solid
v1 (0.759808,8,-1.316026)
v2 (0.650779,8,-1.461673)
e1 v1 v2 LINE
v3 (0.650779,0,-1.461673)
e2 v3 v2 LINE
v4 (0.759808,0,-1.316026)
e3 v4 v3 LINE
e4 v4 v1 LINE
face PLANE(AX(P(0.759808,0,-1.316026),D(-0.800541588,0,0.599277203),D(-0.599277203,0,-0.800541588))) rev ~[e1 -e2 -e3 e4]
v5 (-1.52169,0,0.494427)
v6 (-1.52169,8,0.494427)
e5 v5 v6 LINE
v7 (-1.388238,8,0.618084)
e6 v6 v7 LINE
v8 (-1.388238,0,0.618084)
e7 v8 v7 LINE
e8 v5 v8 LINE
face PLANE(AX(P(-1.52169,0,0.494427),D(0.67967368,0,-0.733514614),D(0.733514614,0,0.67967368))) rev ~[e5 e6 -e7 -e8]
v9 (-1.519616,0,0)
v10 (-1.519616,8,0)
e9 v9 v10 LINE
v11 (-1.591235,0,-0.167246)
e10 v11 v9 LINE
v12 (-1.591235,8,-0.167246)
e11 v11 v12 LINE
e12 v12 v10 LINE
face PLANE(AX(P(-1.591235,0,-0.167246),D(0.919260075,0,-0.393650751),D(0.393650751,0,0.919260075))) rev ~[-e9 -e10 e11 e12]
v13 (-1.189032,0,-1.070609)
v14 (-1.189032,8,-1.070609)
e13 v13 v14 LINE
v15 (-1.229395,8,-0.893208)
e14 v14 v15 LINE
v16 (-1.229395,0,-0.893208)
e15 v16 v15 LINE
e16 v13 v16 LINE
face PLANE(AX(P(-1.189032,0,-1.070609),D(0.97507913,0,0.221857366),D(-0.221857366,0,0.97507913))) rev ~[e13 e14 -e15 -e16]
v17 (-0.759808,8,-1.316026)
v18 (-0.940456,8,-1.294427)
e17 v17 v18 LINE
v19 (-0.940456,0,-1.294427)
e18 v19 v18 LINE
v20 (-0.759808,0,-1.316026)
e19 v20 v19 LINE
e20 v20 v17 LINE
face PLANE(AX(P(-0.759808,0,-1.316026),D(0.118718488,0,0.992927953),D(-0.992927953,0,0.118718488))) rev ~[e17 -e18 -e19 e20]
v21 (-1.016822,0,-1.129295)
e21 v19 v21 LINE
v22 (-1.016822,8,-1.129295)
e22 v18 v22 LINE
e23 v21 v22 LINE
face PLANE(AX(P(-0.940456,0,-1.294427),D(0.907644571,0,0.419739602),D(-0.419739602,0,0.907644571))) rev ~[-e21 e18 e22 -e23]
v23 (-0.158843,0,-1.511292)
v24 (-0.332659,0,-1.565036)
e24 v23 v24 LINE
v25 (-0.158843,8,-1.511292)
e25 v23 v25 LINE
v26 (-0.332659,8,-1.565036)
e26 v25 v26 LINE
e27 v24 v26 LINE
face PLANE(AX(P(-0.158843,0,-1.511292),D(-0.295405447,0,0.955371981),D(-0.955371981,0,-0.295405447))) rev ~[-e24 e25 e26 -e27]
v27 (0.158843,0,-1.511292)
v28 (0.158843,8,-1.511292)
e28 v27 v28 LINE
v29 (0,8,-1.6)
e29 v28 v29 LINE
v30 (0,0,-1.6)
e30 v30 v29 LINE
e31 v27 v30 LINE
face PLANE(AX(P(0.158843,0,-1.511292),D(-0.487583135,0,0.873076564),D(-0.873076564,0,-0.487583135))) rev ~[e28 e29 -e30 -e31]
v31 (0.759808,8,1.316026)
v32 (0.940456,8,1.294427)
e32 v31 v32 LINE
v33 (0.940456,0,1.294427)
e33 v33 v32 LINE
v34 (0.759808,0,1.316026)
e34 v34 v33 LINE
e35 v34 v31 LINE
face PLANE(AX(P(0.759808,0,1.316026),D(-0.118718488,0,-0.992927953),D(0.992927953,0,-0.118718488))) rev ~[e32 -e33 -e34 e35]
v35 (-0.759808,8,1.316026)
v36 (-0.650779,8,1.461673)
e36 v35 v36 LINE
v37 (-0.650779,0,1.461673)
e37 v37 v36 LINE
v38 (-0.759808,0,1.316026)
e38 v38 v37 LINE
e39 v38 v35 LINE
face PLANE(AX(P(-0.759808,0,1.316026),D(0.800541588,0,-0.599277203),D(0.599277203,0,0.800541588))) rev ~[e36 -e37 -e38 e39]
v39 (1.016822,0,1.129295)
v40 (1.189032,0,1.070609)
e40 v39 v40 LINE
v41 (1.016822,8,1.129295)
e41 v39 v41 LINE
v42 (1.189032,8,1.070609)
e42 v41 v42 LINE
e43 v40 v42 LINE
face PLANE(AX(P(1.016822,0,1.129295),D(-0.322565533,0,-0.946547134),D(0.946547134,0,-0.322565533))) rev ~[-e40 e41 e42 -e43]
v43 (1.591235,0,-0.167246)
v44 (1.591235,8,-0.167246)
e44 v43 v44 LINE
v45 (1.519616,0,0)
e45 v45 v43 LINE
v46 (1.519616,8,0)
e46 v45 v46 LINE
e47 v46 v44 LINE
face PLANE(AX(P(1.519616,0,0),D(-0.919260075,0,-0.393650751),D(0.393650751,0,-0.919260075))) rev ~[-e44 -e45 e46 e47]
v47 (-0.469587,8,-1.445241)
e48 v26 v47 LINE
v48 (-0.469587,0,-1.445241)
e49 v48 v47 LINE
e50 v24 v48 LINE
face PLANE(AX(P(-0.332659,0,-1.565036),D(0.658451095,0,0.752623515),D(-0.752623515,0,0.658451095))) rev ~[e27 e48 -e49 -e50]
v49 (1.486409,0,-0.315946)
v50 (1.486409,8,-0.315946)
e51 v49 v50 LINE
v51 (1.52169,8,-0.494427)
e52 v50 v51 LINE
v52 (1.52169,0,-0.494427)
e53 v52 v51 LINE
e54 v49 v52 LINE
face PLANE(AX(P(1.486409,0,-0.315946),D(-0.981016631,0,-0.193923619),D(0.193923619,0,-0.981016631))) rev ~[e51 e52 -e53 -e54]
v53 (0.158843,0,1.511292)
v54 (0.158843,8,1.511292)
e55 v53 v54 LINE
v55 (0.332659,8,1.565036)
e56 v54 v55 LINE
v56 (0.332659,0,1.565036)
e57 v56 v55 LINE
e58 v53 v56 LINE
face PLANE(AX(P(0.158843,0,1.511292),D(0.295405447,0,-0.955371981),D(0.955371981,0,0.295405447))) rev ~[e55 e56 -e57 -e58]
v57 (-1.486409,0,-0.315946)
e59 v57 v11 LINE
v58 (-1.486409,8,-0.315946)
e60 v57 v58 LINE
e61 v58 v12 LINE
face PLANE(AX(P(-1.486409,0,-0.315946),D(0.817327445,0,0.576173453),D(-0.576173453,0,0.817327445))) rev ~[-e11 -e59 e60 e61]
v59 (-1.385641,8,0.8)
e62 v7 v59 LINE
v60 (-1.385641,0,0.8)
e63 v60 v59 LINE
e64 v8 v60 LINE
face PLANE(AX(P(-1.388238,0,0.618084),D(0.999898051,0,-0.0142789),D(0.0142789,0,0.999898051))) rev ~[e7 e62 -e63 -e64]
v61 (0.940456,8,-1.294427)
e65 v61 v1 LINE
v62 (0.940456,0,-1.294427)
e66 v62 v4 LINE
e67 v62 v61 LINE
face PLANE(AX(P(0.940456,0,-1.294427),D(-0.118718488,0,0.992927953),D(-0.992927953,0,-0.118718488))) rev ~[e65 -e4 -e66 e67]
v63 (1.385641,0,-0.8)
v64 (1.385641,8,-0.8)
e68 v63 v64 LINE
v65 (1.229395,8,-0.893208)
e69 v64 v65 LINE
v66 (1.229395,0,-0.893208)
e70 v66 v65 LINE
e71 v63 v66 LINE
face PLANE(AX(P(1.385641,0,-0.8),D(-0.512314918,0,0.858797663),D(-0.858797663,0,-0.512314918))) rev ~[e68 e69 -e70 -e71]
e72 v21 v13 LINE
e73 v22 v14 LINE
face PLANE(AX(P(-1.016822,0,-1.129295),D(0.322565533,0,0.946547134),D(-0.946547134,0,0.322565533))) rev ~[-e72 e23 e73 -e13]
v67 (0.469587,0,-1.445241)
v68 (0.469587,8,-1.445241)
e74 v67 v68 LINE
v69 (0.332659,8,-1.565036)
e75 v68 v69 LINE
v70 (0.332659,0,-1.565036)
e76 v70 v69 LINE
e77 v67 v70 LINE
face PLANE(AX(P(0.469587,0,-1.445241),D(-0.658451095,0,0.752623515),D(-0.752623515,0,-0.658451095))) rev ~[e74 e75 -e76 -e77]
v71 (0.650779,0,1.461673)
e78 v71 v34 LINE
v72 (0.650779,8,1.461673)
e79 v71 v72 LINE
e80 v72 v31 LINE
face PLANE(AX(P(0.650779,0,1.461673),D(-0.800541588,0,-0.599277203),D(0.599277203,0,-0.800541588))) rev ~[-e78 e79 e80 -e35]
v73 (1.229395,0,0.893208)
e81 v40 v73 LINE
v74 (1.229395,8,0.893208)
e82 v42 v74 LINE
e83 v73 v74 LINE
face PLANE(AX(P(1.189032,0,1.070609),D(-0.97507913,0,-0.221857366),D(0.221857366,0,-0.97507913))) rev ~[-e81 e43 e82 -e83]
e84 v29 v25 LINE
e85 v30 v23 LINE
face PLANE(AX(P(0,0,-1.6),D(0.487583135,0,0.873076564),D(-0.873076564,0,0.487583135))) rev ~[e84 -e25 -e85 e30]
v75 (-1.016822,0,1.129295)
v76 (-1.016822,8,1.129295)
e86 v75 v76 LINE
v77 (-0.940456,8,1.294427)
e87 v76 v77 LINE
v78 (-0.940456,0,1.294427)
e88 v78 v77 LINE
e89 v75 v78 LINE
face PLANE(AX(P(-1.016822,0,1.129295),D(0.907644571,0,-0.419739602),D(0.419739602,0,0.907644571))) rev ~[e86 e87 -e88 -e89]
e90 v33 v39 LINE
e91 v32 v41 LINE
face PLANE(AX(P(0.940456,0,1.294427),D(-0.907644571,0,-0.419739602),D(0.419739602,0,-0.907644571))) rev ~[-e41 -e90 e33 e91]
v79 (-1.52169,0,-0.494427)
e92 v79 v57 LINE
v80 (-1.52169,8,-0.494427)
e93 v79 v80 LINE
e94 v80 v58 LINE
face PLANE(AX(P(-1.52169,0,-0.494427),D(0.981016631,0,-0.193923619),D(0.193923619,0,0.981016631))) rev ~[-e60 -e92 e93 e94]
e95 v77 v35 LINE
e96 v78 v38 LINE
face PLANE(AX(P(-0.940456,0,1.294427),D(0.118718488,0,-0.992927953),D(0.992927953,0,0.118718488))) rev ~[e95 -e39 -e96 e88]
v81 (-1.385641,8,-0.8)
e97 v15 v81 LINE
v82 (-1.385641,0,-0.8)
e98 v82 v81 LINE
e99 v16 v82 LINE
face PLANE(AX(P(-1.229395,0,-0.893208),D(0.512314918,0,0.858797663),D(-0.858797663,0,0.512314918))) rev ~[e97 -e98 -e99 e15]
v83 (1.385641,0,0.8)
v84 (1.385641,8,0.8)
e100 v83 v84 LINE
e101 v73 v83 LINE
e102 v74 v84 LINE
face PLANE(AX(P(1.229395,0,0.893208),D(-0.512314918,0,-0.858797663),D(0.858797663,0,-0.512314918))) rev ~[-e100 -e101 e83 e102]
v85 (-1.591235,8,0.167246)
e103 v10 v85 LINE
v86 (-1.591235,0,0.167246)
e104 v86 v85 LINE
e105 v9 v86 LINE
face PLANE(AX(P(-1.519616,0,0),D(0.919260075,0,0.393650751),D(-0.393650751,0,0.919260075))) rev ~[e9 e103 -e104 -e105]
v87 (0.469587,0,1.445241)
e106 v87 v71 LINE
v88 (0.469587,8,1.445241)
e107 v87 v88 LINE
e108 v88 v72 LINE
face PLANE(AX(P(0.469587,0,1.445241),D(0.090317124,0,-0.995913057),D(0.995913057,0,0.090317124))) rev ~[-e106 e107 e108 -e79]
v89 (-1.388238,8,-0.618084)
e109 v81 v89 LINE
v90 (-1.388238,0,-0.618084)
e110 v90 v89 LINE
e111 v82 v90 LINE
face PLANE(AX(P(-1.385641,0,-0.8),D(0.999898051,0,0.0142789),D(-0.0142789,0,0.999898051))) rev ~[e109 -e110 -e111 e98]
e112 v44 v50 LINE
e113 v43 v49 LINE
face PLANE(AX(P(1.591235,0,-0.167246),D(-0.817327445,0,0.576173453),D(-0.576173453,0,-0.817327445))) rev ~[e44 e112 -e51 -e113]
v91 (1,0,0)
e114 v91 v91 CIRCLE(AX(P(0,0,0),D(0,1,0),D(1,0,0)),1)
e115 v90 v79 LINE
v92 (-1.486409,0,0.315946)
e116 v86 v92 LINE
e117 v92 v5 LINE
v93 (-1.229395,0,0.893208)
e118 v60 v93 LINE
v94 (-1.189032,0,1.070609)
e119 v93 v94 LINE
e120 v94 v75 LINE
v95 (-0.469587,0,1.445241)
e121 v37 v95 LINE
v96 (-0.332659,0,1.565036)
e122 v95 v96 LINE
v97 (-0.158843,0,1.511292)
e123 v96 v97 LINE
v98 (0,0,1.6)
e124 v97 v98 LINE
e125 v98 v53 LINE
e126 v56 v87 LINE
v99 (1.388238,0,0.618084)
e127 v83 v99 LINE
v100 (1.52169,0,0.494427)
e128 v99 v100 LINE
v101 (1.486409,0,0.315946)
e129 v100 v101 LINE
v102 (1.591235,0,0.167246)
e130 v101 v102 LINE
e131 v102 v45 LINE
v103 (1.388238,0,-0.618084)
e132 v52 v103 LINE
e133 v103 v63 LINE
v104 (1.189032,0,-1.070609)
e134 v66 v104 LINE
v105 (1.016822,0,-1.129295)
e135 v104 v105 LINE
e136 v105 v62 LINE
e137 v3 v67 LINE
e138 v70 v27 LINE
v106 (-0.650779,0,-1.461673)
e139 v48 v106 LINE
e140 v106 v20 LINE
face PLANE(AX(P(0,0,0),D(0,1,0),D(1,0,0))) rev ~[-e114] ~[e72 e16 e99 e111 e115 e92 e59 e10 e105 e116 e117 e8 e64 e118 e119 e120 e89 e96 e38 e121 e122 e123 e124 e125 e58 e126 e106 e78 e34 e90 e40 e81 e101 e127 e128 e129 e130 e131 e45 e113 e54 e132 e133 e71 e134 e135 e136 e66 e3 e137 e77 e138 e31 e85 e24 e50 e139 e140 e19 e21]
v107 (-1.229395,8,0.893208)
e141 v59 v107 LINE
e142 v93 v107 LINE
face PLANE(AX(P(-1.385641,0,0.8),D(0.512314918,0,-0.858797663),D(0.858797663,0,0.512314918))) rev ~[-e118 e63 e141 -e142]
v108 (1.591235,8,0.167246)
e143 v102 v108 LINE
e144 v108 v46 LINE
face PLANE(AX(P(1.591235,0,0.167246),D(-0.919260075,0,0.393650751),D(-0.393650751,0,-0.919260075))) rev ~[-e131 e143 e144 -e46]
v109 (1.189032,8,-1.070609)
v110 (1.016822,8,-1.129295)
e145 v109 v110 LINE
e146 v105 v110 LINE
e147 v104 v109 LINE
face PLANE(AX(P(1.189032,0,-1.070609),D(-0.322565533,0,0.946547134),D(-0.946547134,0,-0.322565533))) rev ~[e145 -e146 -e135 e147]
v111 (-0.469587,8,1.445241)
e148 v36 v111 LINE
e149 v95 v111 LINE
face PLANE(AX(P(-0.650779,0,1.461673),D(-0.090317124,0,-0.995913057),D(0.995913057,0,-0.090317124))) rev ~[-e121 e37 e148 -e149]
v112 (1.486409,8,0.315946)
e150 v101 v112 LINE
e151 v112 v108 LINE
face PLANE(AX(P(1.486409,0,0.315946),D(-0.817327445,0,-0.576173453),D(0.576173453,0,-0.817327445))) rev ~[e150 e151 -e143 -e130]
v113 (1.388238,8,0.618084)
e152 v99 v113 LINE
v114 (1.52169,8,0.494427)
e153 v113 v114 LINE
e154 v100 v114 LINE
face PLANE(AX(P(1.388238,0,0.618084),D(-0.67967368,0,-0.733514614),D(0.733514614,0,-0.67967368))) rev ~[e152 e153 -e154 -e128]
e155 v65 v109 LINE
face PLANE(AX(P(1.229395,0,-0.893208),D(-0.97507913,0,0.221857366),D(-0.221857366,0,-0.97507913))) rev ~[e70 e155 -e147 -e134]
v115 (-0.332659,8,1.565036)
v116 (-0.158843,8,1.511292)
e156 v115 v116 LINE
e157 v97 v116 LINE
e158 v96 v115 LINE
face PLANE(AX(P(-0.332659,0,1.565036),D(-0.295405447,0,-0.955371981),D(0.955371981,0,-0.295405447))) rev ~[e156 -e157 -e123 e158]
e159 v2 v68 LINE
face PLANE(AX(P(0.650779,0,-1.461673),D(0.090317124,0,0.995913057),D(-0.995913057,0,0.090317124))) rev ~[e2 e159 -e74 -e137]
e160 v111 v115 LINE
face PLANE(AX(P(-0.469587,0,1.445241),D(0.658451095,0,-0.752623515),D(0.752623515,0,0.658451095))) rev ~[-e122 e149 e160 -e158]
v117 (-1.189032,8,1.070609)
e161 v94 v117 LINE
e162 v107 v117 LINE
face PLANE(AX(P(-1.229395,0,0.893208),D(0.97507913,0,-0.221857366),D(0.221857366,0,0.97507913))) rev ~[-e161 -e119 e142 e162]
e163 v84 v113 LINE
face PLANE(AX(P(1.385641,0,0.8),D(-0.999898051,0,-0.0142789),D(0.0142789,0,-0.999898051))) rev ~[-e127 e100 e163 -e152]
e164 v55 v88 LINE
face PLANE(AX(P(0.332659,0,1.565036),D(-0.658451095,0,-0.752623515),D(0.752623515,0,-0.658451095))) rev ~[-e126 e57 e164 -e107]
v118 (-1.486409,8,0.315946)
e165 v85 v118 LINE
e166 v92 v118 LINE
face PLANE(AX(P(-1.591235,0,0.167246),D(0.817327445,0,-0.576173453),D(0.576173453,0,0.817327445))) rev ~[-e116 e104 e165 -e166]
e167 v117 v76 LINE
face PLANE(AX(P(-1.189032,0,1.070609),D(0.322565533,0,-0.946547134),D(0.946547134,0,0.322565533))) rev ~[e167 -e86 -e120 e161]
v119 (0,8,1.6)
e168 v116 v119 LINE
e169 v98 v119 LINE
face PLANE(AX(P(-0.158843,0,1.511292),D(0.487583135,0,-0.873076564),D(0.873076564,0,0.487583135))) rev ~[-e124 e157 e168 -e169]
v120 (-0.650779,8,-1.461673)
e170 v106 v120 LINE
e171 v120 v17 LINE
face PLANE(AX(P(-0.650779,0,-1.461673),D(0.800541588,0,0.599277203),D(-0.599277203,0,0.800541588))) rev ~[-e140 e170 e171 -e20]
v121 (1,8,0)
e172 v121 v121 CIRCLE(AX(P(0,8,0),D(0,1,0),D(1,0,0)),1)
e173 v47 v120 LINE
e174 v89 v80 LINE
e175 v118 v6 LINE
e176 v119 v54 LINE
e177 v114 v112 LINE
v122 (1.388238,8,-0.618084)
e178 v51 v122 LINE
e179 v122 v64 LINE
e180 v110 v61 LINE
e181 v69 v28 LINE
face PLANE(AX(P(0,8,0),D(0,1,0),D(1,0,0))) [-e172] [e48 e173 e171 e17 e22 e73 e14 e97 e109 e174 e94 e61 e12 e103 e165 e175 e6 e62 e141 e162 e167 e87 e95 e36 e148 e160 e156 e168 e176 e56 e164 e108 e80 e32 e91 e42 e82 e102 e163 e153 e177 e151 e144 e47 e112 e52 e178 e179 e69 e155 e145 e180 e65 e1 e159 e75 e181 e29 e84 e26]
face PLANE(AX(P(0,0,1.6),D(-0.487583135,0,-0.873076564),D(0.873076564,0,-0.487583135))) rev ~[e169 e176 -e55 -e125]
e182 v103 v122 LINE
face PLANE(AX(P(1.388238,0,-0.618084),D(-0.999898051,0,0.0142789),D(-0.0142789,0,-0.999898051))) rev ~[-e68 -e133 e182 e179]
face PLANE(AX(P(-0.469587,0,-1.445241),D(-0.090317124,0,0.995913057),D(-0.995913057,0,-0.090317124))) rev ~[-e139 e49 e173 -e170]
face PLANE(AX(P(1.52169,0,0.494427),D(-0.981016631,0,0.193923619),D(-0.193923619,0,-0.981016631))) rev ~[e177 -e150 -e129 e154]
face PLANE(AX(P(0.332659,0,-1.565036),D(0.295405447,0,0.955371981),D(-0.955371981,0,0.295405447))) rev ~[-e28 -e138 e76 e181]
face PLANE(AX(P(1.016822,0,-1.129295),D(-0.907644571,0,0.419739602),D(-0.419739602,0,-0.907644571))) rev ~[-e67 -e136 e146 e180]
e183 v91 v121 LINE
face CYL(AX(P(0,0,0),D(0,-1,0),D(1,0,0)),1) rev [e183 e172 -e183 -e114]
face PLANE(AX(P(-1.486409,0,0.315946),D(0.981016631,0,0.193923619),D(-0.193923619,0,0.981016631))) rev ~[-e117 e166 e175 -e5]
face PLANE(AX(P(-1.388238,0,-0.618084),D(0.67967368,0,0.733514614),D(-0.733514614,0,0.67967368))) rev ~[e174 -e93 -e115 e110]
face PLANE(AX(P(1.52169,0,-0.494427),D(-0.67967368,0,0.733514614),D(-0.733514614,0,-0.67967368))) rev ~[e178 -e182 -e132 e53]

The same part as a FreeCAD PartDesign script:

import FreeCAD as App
import Part
import Sketcher
Q = App.Units.Quantity


def add_polygon(sketch, points):
    """Adds a closed chain of lines whose ends are joined by coincident constraints."""
    first, n = sketch.GeometryCount, len(points)
    for a, b in zip(points, points[1:] + points[:1]):
        sketch.addGeometry(Part.LineSegment(App.Vector(*a, 0), App.Vector(*b, 0)), False)
    for i in range(n):
        sketch.addConstraint(Sketcher.Constraint("Coincident", first + i, 2, first + (i + 1) % n, 1))

doc = App.newDocument("Part")
body = doc.addObject("PartDesign::Body", "Body")

sketch1 = doc.addObject("Sketcher::SketchObject", "Sketch")
body.addObject(sketch1)
sketch1.AttachmentSupport = (doc.XZ_Plane, [""])
sketch1.MapMode = "FlatFace"
add_polygon(sketch1, [(0, -1.6), (-0.16, -1.51), (-0.33, -1.57), (-0.47, -1.45), (-0.65, -1.46), (-0.76, -1.32), (-0.94, -1.29), (-1.02, -1.13), (-1.19, -1.07), (-1.23, -0.89), (-1.39, -0.8), (-1.39, -0.62), (-1.52, -0.49), (-1.49, -0.32), (-1.59, -0.17), (-1.52, 0), (-1.59, 0.17), (-1.49, 0.32), (-1.52, 0.49), (-1.39, 0.62), (-1.39, 0.8), (-1.23, 0.89), (-1.19, 1.07), (-1.02, 1.13), (-0.94, 1.29), (-0.76, 1.32), (-0.65, 1.46), (-0.47, 1.45), (-0.33, 1.57), (-0.16, 1.51), (0, 1.6), (0.16, 1.51), (0.33, 1.57), (0.47, 1.45), (0.65, 1.46), (0.76, 1.32), (0.94, 1.29), (1.02, 1.13), (1.19, 1.07), (1.23, 0.89), (1.39, 0.8), (1.39, 0.62), (1.52, 0.49), (1.49, 0.32), (1.59, 0.17), (1.52, 0), (1.59, -0.17), (1.49, -0.32), (1.52, -0.49), (1.39, -0.62), (1.39, -0.8), (1.23, -0.89), (1.19, -1.07), (1.02, -1.13), (0.94, -1.29), (0.76, -1.32), (0.65, -1.46), (0.47, -1.45), (0.33, -1.57), (0.16, -1.51)])
sketch1.addGeometry(Part.Circle(App.Vector(0, 0, 0), App.Vector(0, 0, 1), 1), False)
sketch1.addConstraint([
    Sketcher.Constraint("Coincident", 60, 3, -1, 1),
    Sketcher.Constraint("Symmetric", 0, 2, 30, 2, -1, 1),
    Sketcher.Constraint("Symmetric", 1, 2, 31, 2, -1, 1),
    Sketcher.Constraint("Symmetric", 2, 2, 32, 2, -1, 1),
    Sketcher.Constraint("Symmetric", 3, 2, 33, 2, -1, 1),
    Sketcher.Constraint("Symmetric", 4, 2, 34, 2, -1, 1),
    Sketcher.Constraint("Symmetric", 5, 2, 35, 2, -1, 1),
    Sketcher.Constraint("Symmetric", 6, 2, 36, 2, -1, 1),
    Sketcher.Constraint("Symmetric", 7, 2, 37, 2, -1, 1),
    Sketcher.Constraint("Symmetric", 8, 2, 38, 2, -1, 1),
    Sketcher.Constraint("Symmetric", 9, 2, 39, 2, -1, 1),
    Sketcher.Constraint("Symmetric", 10, 2, 40, 2, -1, 1),
    Sketcher.Constraint("Symmetric", 11, 2, 41, 2, -1, 1),
    Sketcher.Constraint("Symmetric", 12, 2, 42, 2, -1, 1),
    Sketcher.Constraint("Symmetric", 13, 2, 43, 2, -1, 1),
    Sketcher.Constraint("Symmetric", 14, 2, 44, 2, -1, 1),
    Sketcher.Constraint("Symmetric", 15, 2, 45, 2, -1, 1),
    Sketcher.Constraint("Symmetric", 16, 2, 46, 2, -1, 1),
    Sketcher.Constraint("Symmetric", 17, 2, 47, 2, -1, 1),
    Sketcher.Constraint("Symmetric", 18, 2, 48, 2, -1, 1),
    Sketcher.Constraint("Symmetric", 19, 2, 49, 2, -1, 1),
    Sketcher.Constraint("Symmetric", 20, 2, 50, 2, -1, 1),
    Sketcher.Constraint("Symmetric", 21, 2, 51, 2, -1, 1),
    Sketcher.Constraint("Symmetric", 22, 2, 52, 2, -1, 1),
    Sketcher.Constraint("Symmetric", 23, 2, 53, 2, -1, 1),
    Sketcher.Constraint("Symmetric", 24, 2, 54, 2, -1, 1),
    Sketcher.Constraint("Symmetric", 25, 2, 55, 2, -1, 1),
    Sketcher.Constraint("Symmetric", 26, 2, 56, 2, -1, 1),
    Sketcher.Constraint("Symmetric", 27, 2, 57, 2, -1, 1),
    Sketcher.Constraint("Symmetric", 28, 2, 58, 2, -1, 1),
    Sketcher.Constraint("Symmetric", 29, 2, 59, 2, -1, 1),
    Sketcher.Constraint("Symmetric", 28, 2, 30, 2, -2),
    Sketcher.Constraint("Symmetric", 27, 2, 31, 2, -2),
    Sketcher.Constraint("Symmetric", 26, 2, 32, 2, -2),
    Sketcher.Constraint("Symmetric", 25, 2, 33, 2, -2),
    Sketcher.Constraint("Symmetric", 24, 2, 34, 2, -2),
    Sketcher.Constraint("Symmetric", 23, 2, 35, 2, -2),
    Sketcher.Constraint("Symmetric", 22, 2, 36, 2, -2),
    Sketcher.Constraint("Symmetric", 21, 2, 37, 2, -2),
    Sketcher.Constraint("Symmetric", 20, 2, 38, 2, -2),
    Sketcher.Constraint("Symmetric", 19, 2, 39, 2, -2),
    Sketcher.Constraint("Symmetric", 18, 2, 40, 2, -2),
    Sketcher.Constraint("Symmetric", 17, 2, 41, 2, -2),
    Sketcher.Constraint("Symmetric", 16, 2, 42, 2, -2),
    Sketcher.Constraint("Symmetric", 15, 2, 43, 2, -2),
    Sketcher.Constraint("PointOnObject", 14, 2, -1),
    Sketcher.Constraint("PointOnObject", 29, 2, -2),
    Sketcher.Constraint("Equal", 0, 1),
    Sketcher.Constraint("Equal", 1, 2),
    Sketcher.Constraint("Equal", 2, 3),
    Sketcher.Constraint("Equal", 3, 4),
    Sketcher.Constraint("Equal", 4, 5),
    Sketcher.Constraint("Equal", 5, 6),
    Sketcher.Constraint("Equal", 6, 7),
    Sketcher.Constraint("Equal", 7, 8),
    Sketcher.Constraint("Equal", 8, 9),
    Sketcher.Constraint("Equal", 9, 10),
    Sketcher.Constraint("Equal", 10, 11),
    Sketcher.Constraint("Equal", 11, 12),
    Sketcher.Constraint("Equal", 12, 13),
    Sketcher.Constraint("Equal", 13, 14),
    Sketcher.Constraint("Diameter", 60, Q("2 mm")),
    Sketcher.Constraint("DistanceY", 9, 2, -1, 1, Q("0.8 mm")),
    Sketcher.Constraint("DistanceY", -1, 1, 29, 2, Q("1.6 mm")),
    Sketcher.Constraint("DistanceY", 0, 2, -1, 1, Q("1.511292 mm")),
    Sketcher.Constraint("DistanceX", 1, 2, -1, 1, Q("0.332659 mm")),
    Sketcher.Constraint("DistanceY", 2, 2, -1, 1, Q("1.445241 mm")),
    Sketcher.Constraint("DistanceX", 3, 2, -1, 1, Q("0.650779 mm")),
    Sketcher.Constraint("DistanceX", 4, 2, -1, 1, Q("0.759808 mm")),
    Sketcher.Constraint("DistanceX", 6, 2, -1, 1, Q("1.016822 mm")),
    Sketcher.Constraint("DistanceX", 7, 2, -1, 1, Q("1.189032 mm")),
    Sketcher.Constraint("DistanceY", 7, 2, -1, 1, Q("1.070609 mm")),
    Sketcher.Constraint("DistanceX", 9, 2, -1, 1, Q("1.385641 mm")),
    Sketcher.Constraint("DistanceX", 10, 2, -1, 1, Q("1.388238 mm")),
    Sketcher.Constraint("DistanceX", 11, 2, -1, 1, Q("1.52169 mm")),
    Sketcher.Constraint("DistanceX", 12, 2, -1, 1, Q("1.486409 mm")),
    Sketcher.Constraint("Distance", 0, Q("0.181935 mm")),
    Sketcher.Constraint("DistanceX", 13, 2, -1, 1, Q("1.591235 mm")),
])
pad1 = doc.addObject("PartDesign::Pad", "Pad")
body.addObject(pad1)
pad1.Profile = sketch1
pad1.Length = 8
pad1.Reversed = True

doc.recompute()
